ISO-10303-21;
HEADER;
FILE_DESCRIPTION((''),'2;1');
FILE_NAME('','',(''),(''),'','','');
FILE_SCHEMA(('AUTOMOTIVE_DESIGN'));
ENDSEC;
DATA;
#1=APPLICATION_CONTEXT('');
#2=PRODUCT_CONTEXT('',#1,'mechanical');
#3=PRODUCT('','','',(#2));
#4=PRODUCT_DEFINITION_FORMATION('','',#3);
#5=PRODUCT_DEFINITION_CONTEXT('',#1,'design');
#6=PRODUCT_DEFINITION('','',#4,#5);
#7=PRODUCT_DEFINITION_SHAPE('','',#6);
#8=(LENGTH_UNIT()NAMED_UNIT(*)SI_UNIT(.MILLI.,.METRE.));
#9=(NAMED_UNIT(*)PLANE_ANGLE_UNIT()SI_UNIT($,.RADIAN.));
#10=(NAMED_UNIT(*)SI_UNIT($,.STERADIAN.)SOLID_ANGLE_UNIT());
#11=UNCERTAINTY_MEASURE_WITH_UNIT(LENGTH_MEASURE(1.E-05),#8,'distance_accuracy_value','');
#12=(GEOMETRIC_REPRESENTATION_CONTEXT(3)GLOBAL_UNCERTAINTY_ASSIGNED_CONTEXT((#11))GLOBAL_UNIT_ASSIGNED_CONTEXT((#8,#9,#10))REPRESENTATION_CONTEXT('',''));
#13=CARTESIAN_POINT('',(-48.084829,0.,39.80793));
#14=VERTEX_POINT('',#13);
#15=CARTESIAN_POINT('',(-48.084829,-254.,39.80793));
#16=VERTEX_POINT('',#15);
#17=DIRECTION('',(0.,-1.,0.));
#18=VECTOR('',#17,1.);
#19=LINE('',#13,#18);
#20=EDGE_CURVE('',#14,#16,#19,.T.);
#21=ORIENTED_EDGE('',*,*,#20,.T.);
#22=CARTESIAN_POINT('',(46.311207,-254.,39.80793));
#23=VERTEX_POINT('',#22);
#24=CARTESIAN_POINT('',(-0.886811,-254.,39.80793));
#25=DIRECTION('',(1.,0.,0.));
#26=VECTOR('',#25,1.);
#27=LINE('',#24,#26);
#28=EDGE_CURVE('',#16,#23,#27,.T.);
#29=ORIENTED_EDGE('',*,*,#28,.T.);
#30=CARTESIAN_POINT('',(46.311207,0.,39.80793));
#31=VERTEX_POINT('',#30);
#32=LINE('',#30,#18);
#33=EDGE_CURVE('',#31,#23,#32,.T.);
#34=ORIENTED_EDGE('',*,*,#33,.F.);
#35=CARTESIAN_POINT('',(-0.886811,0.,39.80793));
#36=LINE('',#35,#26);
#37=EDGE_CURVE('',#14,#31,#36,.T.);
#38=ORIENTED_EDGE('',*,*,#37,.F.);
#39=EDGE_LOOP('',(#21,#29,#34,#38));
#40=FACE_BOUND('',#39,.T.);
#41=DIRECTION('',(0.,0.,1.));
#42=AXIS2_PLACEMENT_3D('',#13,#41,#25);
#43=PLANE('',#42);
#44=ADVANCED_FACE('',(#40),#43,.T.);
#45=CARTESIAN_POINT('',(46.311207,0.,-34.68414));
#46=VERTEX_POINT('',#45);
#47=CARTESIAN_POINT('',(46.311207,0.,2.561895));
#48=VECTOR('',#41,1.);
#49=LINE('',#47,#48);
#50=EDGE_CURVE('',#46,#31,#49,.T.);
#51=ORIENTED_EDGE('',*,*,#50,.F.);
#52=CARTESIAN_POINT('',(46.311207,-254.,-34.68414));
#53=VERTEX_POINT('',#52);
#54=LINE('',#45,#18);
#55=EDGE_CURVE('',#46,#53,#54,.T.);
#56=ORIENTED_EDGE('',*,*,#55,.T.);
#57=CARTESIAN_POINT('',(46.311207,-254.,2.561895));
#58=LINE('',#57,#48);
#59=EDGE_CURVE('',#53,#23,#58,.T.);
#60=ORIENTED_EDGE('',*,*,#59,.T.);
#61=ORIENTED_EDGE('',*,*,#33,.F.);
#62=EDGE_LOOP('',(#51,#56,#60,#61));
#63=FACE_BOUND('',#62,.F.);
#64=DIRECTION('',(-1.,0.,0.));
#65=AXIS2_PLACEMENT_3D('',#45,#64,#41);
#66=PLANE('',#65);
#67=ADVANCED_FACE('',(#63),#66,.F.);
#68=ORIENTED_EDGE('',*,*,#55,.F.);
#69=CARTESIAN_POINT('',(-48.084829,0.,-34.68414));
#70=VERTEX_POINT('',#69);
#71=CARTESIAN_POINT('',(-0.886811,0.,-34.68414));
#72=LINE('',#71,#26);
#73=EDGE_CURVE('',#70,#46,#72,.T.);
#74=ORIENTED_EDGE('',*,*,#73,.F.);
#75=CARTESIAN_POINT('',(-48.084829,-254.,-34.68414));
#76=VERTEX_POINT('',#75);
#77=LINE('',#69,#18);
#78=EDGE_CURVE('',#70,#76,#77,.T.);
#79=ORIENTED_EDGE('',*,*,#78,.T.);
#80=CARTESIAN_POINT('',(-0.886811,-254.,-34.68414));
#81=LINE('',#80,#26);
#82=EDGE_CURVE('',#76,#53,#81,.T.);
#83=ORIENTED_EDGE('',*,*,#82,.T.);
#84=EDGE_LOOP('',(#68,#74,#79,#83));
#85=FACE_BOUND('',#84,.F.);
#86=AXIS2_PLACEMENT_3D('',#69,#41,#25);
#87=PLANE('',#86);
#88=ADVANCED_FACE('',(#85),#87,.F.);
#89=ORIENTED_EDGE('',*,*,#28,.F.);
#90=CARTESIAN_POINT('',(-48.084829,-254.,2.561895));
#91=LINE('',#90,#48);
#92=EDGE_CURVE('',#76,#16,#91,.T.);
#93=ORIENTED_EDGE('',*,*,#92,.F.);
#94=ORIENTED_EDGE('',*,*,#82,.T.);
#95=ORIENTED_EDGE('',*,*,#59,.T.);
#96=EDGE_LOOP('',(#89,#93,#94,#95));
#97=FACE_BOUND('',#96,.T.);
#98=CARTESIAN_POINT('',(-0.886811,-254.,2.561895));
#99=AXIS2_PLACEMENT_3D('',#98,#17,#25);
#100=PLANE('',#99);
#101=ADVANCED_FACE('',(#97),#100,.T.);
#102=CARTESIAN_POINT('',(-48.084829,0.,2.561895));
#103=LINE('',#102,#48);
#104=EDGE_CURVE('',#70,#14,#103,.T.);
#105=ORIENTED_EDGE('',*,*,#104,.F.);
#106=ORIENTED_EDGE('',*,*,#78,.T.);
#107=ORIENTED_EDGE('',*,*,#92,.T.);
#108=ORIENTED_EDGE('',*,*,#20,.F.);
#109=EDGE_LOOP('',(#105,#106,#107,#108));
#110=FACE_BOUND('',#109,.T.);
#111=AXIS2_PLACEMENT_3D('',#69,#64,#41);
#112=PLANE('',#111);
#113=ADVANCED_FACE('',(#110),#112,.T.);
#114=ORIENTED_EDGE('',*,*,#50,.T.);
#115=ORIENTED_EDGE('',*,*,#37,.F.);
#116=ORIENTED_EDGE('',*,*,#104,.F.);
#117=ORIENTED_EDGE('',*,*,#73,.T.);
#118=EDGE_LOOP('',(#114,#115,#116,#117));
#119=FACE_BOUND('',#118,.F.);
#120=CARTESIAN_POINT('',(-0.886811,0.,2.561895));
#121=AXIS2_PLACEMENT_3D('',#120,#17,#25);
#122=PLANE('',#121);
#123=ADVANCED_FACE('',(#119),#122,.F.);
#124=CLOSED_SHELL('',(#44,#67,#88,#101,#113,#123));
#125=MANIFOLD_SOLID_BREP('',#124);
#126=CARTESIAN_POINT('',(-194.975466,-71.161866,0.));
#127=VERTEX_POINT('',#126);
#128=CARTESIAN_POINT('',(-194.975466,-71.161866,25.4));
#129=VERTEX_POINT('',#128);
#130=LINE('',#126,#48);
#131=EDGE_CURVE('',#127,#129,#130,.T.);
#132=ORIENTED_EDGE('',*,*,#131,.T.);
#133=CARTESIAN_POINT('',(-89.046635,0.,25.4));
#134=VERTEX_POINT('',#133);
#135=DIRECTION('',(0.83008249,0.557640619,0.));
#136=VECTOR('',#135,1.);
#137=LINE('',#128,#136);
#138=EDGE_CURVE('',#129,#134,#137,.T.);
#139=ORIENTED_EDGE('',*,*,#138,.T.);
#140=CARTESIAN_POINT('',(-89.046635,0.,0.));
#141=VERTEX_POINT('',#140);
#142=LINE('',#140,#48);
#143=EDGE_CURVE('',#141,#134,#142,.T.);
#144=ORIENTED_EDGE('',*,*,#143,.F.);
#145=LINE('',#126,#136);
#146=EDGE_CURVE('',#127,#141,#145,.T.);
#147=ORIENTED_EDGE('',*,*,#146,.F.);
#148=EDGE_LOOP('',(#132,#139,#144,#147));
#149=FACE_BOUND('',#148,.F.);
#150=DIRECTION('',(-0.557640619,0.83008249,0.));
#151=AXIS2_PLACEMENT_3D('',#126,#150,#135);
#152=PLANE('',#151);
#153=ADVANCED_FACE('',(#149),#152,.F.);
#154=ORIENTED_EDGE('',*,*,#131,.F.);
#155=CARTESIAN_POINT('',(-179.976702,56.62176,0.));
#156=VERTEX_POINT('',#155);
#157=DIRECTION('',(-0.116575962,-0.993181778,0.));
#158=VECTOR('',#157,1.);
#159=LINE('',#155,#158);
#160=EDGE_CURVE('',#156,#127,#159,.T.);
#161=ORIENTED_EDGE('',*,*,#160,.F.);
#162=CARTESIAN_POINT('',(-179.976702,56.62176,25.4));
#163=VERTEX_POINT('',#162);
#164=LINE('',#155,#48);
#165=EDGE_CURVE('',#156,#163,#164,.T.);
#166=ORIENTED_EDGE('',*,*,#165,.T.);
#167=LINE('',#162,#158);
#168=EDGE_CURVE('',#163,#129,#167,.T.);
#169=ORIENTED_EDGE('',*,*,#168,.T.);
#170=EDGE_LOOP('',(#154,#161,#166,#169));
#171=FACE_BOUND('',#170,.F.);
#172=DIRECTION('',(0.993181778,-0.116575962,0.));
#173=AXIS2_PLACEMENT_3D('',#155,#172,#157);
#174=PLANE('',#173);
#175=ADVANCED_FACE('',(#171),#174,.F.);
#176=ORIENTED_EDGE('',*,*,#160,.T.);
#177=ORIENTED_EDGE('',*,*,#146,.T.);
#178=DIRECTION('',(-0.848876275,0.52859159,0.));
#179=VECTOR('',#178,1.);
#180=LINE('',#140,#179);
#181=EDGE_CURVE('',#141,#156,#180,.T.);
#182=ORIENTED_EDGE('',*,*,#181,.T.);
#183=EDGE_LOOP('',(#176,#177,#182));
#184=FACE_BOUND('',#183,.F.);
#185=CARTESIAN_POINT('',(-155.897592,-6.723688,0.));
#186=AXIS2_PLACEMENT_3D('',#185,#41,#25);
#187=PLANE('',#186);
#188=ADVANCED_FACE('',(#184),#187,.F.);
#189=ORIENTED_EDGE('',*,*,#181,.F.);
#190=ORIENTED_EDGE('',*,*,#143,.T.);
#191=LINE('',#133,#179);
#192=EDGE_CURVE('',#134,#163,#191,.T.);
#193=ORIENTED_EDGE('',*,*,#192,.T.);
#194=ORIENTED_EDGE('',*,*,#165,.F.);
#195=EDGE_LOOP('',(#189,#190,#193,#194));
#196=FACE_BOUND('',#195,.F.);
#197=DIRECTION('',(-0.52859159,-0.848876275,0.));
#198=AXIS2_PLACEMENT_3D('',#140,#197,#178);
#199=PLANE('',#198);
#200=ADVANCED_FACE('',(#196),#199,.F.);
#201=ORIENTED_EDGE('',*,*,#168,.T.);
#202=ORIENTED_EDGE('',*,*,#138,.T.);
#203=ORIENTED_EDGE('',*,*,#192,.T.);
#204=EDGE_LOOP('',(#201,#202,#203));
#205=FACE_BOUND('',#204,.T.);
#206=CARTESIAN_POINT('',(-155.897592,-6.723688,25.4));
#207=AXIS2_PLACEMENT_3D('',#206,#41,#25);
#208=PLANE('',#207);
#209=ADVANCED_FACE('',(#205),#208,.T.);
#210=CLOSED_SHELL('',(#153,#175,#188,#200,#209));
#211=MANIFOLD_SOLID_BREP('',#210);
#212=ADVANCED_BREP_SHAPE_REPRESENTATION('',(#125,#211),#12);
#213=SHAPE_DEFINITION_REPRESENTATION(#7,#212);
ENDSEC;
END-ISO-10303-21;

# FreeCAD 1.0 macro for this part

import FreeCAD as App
import Part
import Sketcher

V = App.Vector
Q = App.Units.Quantity


def add_polygon(sketch, points):
    """Adds a closed chain of lines whose ends are joined by coincident constraints."""
    first, n = sketch.GeometryCount, len(points)
    for a, b in zip(points, points[1:] + points[:1]):
        sketch.addGeometry(Part.LineSegment(App.Vector(*a, 0), App.Vector(*b, 0)), False)
    for i in range(n):
        sketch.addConstraint(Sketcher.Constraint("Coincident", first + i, 2, first + (i + 1) % n, 1))

doc = App.newDocument("Part")
body = doc.addObject("PartDesign::Body", "Body")

# Sketch on XZ plane
sketch1 = body.newObject("Sketcher::SketchObject", "Sketch")
sketch1.AttachmentSupport = (doc.getObject("XZ_Plane"), [""])
sketch1.MapMode = "FlatFace"
add_polygon(sketch1, [(-48.084829, 39.80793), (-48.084829, -34.68414), (46.311207, -34.68414), (46.311207, 39.80793)])  # lines 0-3
sketch1.addConstraint(Sketcher.Constraint("Vertical", 0))
sketch1.addConstraint(Sketcher.Constraint("Horizontal", 1))
sketch1.addConstraint(Sketcher.Constraint("Vertical", 2))
sketch1.addConstraint(Sketcher.Constraint("Horizontal", 3))
sketch1.addConstraint(Sketcher.Constraint("DistanceY", 0, 2, 0, 1, 74.492071))
sketch1.addConstraint(Sketcher.Constraint("DistanceX", 1, 1, 1, 2, 94.396036))
sketch1.addConstraint(Sketcher.Constraint("DistanceX", 0, 2, -1, 1, 48.084829))
sketch1.addConstraint(Sketcher.Constraint("DistanceY", 0, 2, -1, 1, 34.68414))
pad1 = body.newObject("PartDesign::Pad", "Pad")
pad1.Profile = sketch1
pad1.Length = Q("10 in")
body2 = doc.addObject("PartDesign::Body", "Body001")

# Sketch on XY plane
sketch2 = body2.newObject("Sketcher::SketchObject", "Sketch001")
sketch2.AttachmentSupport = (doc.getObject("XY_Plane001"), [""])
sketch2.MapMode = "FlatFace"
add_polygon(sketch2, [(-89.046635, 0), (-179.976702, 56.62176), (-194.975466, -71.161866)])  # lines 0-2
sketch2.addConstraint(Sketcher.Constraint("PointOnObject", 2, 2, -1))
sketch2.addConstraint(Sketcher.Constraint("DistanceX", 0, 2, -1, 1, 179.976702))
sketch2.addConstraint(Sketcher.Constraint("DistanceY", -1, 1, 0, 2, 56.62176))
sketch2.addConstraint(Sketcher.Constraint("DistanceX", 1, 2, 2, 2, 105.928831))
sketch2.addConstraint(Sketcher.Constraint("Distance", 0, 107.118163))
sketch2.addConstraint(Sketcher.Constraint("Distance", 1, 128.660864))
pad2 = body2.newObject("PartDesign::Pad", "Pad001")
pad2.Profile = sketch2
pad2.Length = Q("1 in")

doc.recompute()
